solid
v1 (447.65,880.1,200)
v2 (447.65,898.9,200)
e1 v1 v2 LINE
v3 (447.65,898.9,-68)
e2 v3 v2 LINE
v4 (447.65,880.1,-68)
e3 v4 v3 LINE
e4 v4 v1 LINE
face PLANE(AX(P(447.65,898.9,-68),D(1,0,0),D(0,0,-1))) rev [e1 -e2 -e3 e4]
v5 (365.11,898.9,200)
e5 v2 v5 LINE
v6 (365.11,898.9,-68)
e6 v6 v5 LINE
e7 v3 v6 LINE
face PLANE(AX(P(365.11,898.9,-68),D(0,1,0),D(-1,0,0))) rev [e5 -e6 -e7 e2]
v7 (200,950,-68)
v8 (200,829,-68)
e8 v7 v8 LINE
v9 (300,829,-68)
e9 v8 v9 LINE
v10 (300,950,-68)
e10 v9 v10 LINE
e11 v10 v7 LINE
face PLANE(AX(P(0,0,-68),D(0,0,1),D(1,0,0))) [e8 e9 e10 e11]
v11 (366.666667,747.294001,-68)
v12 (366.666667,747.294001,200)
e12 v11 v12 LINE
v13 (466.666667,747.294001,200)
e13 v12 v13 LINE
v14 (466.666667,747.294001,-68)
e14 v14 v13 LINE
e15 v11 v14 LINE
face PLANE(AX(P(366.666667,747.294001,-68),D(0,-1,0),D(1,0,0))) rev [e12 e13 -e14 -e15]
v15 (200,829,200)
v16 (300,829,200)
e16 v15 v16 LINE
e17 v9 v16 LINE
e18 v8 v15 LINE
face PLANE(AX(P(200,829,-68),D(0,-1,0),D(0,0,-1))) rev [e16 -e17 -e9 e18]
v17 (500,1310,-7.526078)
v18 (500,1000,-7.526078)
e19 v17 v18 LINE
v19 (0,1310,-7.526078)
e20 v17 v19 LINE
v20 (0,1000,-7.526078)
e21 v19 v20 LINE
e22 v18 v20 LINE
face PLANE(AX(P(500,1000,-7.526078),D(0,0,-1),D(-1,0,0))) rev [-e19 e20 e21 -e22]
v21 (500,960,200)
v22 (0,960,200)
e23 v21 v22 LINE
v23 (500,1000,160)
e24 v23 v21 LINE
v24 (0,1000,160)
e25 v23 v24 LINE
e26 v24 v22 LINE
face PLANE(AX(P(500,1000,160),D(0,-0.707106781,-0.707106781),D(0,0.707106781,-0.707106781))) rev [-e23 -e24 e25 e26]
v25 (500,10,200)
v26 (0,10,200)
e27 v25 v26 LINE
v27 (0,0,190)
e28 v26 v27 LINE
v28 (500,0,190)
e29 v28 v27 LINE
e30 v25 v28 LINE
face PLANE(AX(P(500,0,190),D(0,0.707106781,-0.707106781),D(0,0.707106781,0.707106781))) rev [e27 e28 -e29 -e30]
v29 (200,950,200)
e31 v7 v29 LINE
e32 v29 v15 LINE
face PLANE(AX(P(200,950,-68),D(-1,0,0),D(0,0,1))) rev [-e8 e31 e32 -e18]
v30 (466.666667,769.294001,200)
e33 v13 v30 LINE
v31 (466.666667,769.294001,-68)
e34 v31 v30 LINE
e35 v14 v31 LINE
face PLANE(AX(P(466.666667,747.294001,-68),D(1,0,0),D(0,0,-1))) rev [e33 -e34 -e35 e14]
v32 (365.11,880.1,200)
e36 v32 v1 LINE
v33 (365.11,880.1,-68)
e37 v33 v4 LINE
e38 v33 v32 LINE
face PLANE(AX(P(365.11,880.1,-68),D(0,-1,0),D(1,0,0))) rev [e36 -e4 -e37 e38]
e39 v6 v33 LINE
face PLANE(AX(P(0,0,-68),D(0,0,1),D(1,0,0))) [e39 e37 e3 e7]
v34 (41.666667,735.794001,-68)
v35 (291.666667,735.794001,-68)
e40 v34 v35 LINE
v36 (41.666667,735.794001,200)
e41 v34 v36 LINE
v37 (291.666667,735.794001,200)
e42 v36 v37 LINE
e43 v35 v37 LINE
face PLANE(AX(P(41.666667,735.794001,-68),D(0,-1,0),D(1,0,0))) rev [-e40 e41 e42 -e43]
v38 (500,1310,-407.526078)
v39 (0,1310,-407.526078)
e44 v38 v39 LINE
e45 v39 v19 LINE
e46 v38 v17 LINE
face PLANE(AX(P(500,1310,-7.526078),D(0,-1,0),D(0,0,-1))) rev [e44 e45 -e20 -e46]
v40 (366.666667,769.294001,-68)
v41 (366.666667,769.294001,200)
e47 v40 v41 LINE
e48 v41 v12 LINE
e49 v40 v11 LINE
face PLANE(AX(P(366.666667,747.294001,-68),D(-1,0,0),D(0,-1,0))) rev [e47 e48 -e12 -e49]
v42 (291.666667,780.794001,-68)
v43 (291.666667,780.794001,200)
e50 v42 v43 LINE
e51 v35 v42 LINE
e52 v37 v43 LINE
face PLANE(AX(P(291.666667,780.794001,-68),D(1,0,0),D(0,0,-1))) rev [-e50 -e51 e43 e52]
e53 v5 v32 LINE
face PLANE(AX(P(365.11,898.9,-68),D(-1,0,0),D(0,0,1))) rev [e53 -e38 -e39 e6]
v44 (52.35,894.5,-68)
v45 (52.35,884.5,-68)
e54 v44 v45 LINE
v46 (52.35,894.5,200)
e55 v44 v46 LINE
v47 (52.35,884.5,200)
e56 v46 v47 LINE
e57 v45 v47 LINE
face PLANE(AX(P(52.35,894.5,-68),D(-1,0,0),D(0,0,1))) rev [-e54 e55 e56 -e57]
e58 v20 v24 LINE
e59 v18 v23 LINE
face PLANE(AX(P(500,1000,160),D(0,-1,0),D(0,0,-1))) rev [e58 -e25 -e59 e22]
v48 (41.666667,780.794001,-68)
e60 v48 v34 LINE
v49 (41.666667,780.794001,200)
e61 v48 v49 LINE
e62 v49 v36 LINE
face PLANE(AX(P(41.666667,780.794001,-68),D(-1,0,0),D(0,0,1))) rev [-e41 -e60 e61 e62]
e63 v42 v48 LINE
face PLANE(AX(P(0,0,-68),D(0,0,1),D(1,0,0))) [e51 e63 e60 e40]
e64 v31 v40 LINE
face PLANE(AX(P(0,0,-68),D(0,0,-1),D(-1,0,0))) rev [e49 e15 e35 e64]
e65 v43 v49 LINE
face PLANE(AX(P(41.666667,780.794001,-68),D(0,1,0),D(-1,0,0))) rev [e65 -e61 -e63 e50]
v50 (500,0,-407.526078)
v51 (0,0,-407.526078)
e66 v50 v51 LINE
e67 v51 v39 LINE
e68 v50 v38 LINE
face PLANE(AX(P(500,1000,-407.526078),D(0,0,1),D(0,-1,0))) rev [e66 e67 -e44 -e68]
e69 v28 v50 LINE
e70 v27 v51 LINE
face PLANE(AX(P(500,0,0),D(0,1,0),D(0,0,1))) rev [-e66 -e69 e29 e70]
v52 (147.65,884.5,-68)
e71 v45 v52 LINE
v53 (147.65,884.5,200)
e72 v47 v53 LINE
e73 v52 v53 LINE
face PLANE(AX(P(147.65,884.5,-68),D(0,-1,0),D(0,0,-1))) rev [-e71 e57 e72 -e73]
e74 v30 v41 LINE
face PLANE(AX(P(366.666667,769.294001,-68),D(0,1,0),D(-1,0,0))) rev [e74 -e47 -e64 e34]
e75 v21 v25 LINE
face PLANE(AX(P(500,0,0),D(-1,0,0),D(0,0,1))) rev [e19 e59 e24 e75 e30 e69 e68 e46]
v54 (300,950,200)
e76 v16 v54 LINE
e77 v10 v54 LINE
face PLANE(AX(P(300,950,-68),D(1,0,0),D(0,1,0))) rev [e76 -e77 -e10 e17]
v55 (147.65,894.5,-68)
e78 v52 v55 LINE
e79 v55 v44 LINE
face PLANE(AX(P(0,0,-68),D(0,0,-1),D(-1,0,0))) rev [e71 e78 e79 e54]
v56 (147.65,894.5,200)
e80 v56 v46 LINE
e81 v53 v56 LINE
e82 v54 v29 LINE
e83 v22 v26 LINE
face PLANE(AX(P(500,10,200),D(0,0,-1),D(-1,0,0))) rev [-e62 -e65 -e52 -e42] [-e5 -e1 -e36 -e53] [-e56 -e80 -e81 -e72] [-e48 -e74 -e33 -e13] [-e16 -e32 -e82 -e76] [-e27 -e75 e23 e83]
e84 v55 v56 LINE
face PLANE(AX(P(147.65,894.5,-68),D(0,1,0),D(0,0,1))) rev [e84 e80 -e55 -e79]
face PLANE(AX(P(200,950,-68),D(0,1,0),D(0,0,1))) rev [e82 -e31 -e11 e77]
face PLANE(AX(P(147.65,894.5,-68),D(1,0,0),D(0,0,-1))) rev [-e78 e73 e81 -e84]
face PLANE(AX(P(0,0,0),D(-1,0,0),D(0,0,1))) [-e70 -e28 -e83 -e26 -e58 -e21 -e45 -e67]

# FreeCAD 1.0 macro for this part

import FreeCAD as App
import Part
import Sketcher
from FreeCAD import Vector
Q = App.Units.Quantity


def add_polygon(sketch, points):
    """Adds a closed chain of lines whose ends are joined by coincident constraints."""
    first, n = sketch.GeometryCount, len(points)
    for a, b in zip(points, points[1:] + points[:1]):
        sketch.addGeometry(Part.LineSegment(App.Vector(*a, 0), App.Vector(*b, 0)), False)
    for i in range(n):
        sketch.addConstraint(Sketcher.Constraint("Coincident", first + i, 2, first + (i + 1) % n, 1))

doc = App.newDocument("Part")
body = doc.addObject("PartDesign::Body", "Body")

sketch1 = doc.addObject("Sketcher::SketchObject", "Sketch")
body.addObject(sketch1)
sketch1.AttachmentSupport = (doc.YZ_Plane, [""])
sketch1.MapMode = "FlatFace"
add_polygon(sketch1, [(0, 190), (0, -408), (1310, -408), (1310, -8), (1000, -8), (1000, 160), (960, 200), (10, 200)])
sketch1.addConstraint(Sketcher.Constraint("Vertical", 0))
sketch1.addConstraint(Sketcher.Constraint("Horizontal", 1))
sketch1.addConstraint(Sketcher.Constraint("Vertical", 2))
sketch1.addConstraint(Sketcher.Constraint("Horizontal", 3))
sketch1.addConstraint(Sketcher.Constraint("Vertical", 4))
sketch1.addConstraint(Sketcher.Constraint("Horizontal", 6))
sketch1.addConstraint(Sketcher.Constraint("PointOnObject", 0, 2, -2))
sketch1.addConstraint(Sketcher.Constraint("Perpendicular", 5, 7))
sketch1.addConstraint(Sketcher.Constraint("DistanceX", 1, 1, 1, 2, Q("1310 mm")))
sketch1.addConstraint(Sketcher.Constraint("DistanceX", 3, 2, 3, 1, Q("310 mm")))
sketch1.addConstraint(Sketcher.Constraint("DistanceX", 6, 2, 6, 1, Q("950 mm")))
sketch1.addConstraint(Sketcher.Constraint("DistanceY", 2, 1, 2, 2, Q("400 mm")))
sketch1.addConstraint(Sketcher.Constraint("Angle", 5, Q("135 deg")))
sketch1.addConstraint(Sketcher.Constraint("DistanceY", -1, 1, 4, 2, Q("160 mm")))
sketch1.addConstraint(Sketcher.Constraint("DistanceX", -1, 1, 5, 2, Q("960 mm")))
sketch1.addConstraint(Sketcher.Constraint("DistanceY", 0, 2, 0, 1, Q("597.526078 mm")))
pad1 = doc.addObject("PartDesign::Pad", "Pad")
body.addObject(pad1)
pad1.Profile = sketch1
pad1.Length = 500

sketch2 = doc.addObject("Sketcher::SketchObject", "Sketch001")
body.addObject(sketch2)
sketch2.AttachmentSupport = (doc.XY_Plane, [""])
sketch2.MapMode = "FlatFace"
sketch2.AttachmentOffset = App.Placement(Vector(0, 0, 200), App.Rotation())
add_polygon(sketch2, [(200, 950), (200, 829), (300, 829), (300, 950)])
add_polygon(sketch2, [(52, 894), (52, 884), (148, 884), (148, 894)])
add_polygon(sketch2, [(365, 899), (365, 880), (448, 880), (448, 899)])
add_polygon(sketch2, [(367, 769), (367, 747), (467, 747), (467, 769)])
add_polygon(sketch2, [(42, 781), (42, 736), (292, 736), (292, 781)])
sketch2.addConstraint(Sketcher.Constraint("Vertical", 0))
sketch2.addConstraint(Sketcher.Constraint("Horizontal", 1))
sketch2.addConstraint(Sketcher.Constraint("Vertical", 2))
sketch2.addConstraint(Sketcher.Constraint("Horizontal", 3))
sketch2.addConstraint(Sketcher.Constraint("Vertical", 4))
sketch2.addConstraint(Sketcher.Constraint("Horizontal", 5))
sketch2.addConstraint(Sketcher.Constraint("Vertical", 6))
sketch2.addConstraint(Sketcher.Constraint("Horizontal", 7))
sketch2.addConstraint(Sketcher.Constraint("Vertical", 8))
sketch2.addConstraint(Sketcher.Constraint("Horizontal", 9))
sketch2.addConstraint(Sketcher.Constraint("Vertical", 10))
sketch2.addConstraint(Sketcher.Constraint("Horizontal", 11))
sketch2.addConstraint(Sketcher.Constraint("Vertical", 12))
sketch2.addConstraint(Sketcher.Constraint("Horizontal", 13))
sketch2.addConstraint(Sketcher.Constraint("Vertical", 14))
sketch2.addConstraint(Sketcher.Constraint("Horizontal", 15))
sketch2.addConstraint(Sketcher.Constraint("Vertical", 16))
sketch2.addConstraint(Sketcher.Constraint("Horizontal", 17))
sketch2.addConstraint(Sketcher.Constraint("Vertical", 18))
sketch2.addConstraint(Sketcher.Constraint("Horizontal", 19))
sketch2.addConstraint(Sketcher.Constraint("Equal", 3, 13))
sketch2.addConstraint(Sketcher.Constraint("DistanceX", 1, 1, 1, 2, Q("100 mm")))
sketch2.addConstraint(Sketcher.Constraint("DistanceX", 17, 1, 17, 2, Q("250 mm")))
sketch2.addConstraint(Sketcher.Constraint("DistanceY", 0, 2, 0, 1, Q("121 mm")))
sketch2.addConstraint(Sketcher.Constraint("DistanceY", 4, 2, 4, 1, Q("10 mm")))
sketch2.addConstraint(Sketcher.Constraint("DistanceY", 12, 2, 12, 1, Q("22 mm")))
sketch2.addConstraint(Sketcher.Constraint("DistanceY", 16, 2, 16, 1, Q("45 mm")))
sketch2.addConstraint(Sketcher.Constraint("DistanceX", 5, 1, 5, 2, Q("95.3 mm")))
sketch2.addConstraint(Sketcher.Constraint("DistanceY", 8, 2, 8, 1, Q("18.8 mm")))
sketch2.addConstraint(Sketcher.Constraint("DistanceX", -1, 1, 0, 2, Q("200 mm")))
sketch2.addConstraint(Sketcher.Constraint("DistanceY", -1, 1, 0, 2, Q("829 mm")))
sketch2.addConstraint(Sketcher.Constraint("DistanceX", 17, 2, 12, 2, Q("75 mm")))
sketch2.addConstraint(Sketcher.Constraint("DistanceX", 9, 1, 9, 2, Q("82.54 mm")))
sketch2.addConstraint(Sketcher.Constraint("DistanceY", -1, 1, 4, 2, Q("884.5 mm")))
sketch2.addConstraint(Sketcher.Constraint("DistanceY", -1, 1, 8, 2, Q("880.1 mm")))
sketch2.addConstraint(Sketcher.Constraint("DistanceY", 17, 2, 12, 2, Q("11.5 mm")))
sketch2.addConstraint(Sketcher.Constraint("DistanceX", -1, 1, 4, 2, Q("52.35 mm")))
sketch2.addConstraint(Sketcher.Constraint("DistanceX", -1, 1, 8, 2, Q("365.11 mm")))
sketch2.addConstraint(Sketcher.Constraint("DistanceY", -1, 1, 12, 2, Q("747.294001 mm")))
sketch2.addConstraint(Sketcher.Constraint("DistanceX", -1, 1, 12, 2, Q("366.666667 mm")))
pocket1 = doc.addObject("PartDesign::Pocket", "Pocket")
body.addObject(pocket1)
pocket1.Profile = sketch2
pocket1.Length = 268

doc.recompute()
